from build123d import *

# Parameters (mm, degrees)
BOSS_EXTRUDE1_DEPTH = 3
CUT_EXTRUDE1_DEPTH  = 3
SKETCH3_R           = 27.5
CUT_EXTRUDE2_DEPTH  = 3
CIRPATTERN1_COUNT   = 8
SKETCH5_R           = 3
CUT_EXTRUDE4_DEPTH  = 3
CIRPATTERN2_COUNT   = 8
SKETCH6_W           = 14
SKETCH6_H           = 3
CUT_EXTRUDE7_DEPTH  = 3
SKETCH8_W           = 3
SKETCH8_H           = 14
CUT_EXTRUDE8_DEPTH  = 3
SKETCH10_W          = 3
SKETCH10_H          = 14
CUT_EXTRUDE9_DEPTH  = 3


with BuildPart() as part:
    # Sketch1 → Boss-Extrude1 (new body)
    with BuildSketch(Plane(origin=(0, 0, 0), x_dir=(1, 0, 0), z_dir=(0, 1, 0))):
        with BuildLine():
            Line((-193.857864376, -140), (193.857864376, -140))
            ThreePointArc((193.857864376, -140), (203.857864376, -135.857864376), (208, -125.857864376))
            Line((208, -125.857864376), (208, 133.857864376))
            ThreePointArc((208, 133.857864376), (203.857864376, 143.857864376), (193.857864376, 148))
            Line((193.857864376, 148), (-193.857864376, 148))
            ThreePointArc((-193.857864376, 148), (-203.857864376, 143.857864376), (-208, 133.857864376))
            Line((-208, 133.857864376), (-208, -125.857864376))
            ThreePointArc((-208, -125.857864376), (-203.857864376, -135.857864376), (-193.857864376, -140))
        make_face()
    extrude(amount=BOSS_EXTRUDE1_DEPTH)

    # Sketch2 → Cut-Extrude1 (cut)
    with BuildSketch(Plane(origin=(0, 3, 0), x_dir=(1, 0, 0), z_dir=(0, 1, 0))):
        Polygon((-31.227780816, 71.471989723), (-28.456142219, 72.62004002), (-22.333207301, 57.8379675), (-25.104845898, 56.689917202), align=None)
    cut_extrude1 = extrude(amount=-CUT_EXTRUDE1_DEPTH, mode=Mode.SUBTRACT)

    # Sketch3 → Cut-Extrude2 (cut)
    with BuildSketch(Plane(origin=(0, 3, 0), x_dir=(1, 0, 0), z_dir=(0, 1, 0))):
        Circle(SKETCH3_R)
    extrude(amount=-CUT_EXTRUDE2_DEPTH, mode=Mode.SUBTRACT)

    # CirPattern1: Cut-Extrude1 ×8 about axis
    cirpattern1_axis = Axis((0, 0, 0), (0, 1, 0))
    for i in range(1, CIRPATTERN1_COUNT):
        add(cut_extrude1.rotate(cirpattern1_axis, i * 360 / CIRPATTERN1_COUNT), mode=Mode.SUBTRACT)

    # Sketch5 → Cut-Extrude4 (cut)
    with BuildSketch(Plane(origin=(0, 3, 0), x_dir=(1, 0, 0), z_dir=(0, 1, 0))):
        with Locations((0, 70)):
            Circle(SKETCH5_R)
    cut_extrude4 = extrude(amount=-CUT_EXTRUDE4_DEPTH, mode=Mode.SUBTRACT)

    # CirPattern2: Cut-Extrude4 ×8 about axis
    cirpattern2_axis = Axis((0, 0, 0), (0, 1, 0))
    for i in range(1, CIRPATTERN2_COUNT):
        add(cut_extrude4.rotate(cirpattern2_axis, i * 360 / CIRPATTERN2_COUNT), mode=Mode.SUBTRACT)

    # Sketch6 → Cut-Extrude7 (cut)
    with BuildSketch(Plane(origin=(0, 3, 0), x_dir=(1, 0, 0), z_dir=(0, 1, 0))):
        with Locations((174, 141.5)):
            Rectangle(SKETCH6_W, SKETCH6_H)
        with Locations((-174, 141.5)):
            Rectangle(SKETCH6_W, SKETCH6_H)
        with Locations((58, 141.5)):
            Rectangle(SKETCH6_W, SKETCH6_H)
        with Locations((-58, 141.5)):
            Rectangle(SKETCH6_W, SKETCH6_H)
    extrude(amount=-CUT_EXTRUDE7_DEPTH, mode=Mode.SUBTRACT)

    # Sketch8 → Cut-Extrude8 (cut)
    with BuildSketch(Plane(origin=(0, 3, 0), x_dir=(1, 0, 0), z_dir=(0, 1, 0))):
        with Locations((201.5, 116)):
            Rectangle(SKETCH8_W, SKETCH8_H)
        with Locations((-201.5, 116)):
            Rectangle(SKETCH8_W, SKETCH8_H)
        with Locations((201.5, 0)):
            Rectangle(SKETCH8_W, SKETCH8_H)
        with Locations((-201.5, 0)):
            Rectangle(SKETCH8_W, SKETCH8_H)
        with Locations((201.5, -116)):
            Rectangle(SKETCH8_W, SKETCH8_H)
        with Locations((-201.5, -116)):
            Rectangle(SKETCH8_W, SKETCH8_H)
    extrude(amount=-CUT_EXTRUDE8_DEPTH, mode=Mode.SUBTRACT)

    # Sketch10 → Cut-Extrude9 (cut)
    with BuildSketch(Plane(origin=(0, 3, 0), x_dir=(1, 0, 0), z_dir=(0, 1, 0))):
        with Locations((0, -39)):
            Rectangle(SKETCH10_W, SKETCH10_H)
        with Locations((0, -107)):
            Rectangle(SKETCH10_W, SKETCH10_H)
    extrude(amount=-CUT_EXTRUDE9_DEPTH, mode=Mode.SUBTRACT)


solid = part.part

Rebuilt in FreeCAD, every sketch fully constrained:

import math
import FreeCAD as App
import Part
import Sketcher

V = App.Vector
Q = App.Units.Quantity

doc = App.newDocument("Part")
body = doc.addObject("PartDesign::Body", "Body")

# Sketch on XZ plane
sketch1 = body.newObject("Sketcher::SketchObject", "Sketch")
sketch1.AttachmentSupport = (doc.getObject("XZ_Plane"), [""])
sketch1.MapMode = "FlatFace"
sketch1.addGeometry([
    Part.LineSegment(V(-194, 140, 0), V(194, 140, 0)),  # 0
    Part.ArcOfCircle(Part.Circle(V(194, 126, 0), V(0, 0, 1), 14), math.radians(0), math.radians(90)),  # 1
    Part.LineSegment(V(208, 126, 0), V(208, -134, 0)),  # 2
    Part.ArcOfCircle(Part.Circle(V(194, -134, 0), V(0, 0, 1), 14), math.radians(-90), math.radians(0)),  # 3
    Part.LineSegment(V(194, -148, 0), V(-194, -148, 0)),  # 4
    Part.ArcOfCircle(Part.Circle(V(-194, -134, 0), V(0, 0, 1), 14), math.radians(-180), math.radians(-90)),  # 5
    Part.LineSegment(V(-208, -134, 0), V(-208, 126, 0)),  # 6
    Part.ArcOfCircle(Part.Circle(V(-194, 126, 0), V(0, 0, 1), 14), math.radians(90), math.radians(180)),  # 7
], False)
sketch1.addConstraint([
    Sketcher.Constraint("Tangent", 0, 2, 1, 2),
    Sketcher.Constraint("Tangent", 1, 1, 2, 1),
    Sketcher.Constraint("Tangent", 2, 2, 3, 2),
    Sketcher.Constraint("Tangent", 3, 1, 4, 1),
    Sketcher.Constraint("Tangent", 4, 2, 5, 2),
    Sketcher.Constraint("Tangent", 5, 1, 6, 1),
    Sketcher.Constraint("Tangent", 6, 2, 7, 2),
    Sketcher.Constraint("Tangent", 7, 1, 0, 1),
    Sketcher.Constraint("Horizontal", 0),
    Sketcher.Constraint("Vertical", 2),
    Sketcher.Constraint("Horizontal", 4),
    Sketcher.Constraint("Vertical", 6),
    Sketcher.Constraint("Equal", 1, 3),
    Sketcher.Constraint("Equal", 3, 5),
    Sketcher.Constraint("Equal", 5, 7),
    Sketcher.Constraint("DistanceY", -1, 1, 0, 2, 140.0),
    Sketcher.Constraint("DistanceX", -1, 1, 1, 1, 208.0),
    Sketcher.Constraint("DistanceY", 3, 1, -1, 1, 148.0),
    Sketcher.Constraint("DistanceX", 5, 1, -1, 1, 208.0),
    Sketcher.Constraint("Radius", 1, 14.142136),
])
pad1 = body.newObject("PartDesign::Pad", "Pad")
pad1.Profile = sketch1
pad1.Length = 3
pad1.Reversed = True

# Sketch on XZ plane
sketch2 = body.newObject("Sketcher::SketchObject", "Sketch001")
sketch2.AttachmentSupport = (doc.getObject("XZ_Plane"), [""])
sketch2.MapMode = "FlatFace"
sketch2.AttachmentOffset = App.Placement(V(0, 0, -3), App.Rotation())
sketch2.addGeometry([
    Part.LineSegment(V(-28.5, -72.6, 0), V(-31.2, -71.5, 0)),
    Part.LineSegment(V(-31.2, -71.5, 0), V(-25.1, -56.7, 0)),
    Part.LineSegment(V(-25.1, -56.7, 0), V(-22.3, -57.8, 0)),
    Part.LineSegment(V(-22.3, -57.8, 0), V(-28.5, -72.6, 0)),
], False)
sketch2.addConstraint([
    Sketcher.Constraint("Coincident", 0, 2, 1, 1),
    Sketcher.Constraint("Coincident", 1, 2, 2, 1),
    Sketcher.Constraint("Coincident", 2, 2, 3, 1),
    Sketcher.Constraint("Coincident", 3, 2, 0, 1),
    Sketcher.Constraint("Perpendicular", 0, 1),
    Sketcher.Constraint("Perpendicular", 1, 2),
    Sketcher.Constraint("Perpendicular", 2, 3),
    Sketcher.Constraint("Distance", 0, 3.0),
    Sketcher.Constraint("Distance", 1, 16.0),
    Sketcher.Constraint("Angle", 0, Q("157.5 deg")),
    Sketcher.Constraint("DistanceX", 0, 2, -1, 1, 31.227781),
    Sketcher.Constraint("DistanceY", 0, 2, -1, 1, 71.47199),
])
pocket1 = body.newObject("PartDesign::Pocket", "Pocket")
pocket1.Profile = sketch2
pocket1.Length = 3
pocket1.Reversed = True

# Sketch on XZ plane
sketch3 = body.newObject("Sketcher::SketchObject", "Sketch002")
sketch3.AttachmentSupport = (doc.getObject("XZ_Plane"), [""])
sketch3.MapMode = "FlatFace"
sketch3.AttachmentOffset = App.Placement(V(0, 0, -3), App.Rotation())
sketch3.addGeometry(Part.Circle(V(0, 0, 0), V(0, 0, 1), 28), False)
sketch3.addConstraint([
    Sketcher.Constraint("Coincident", 0, 3, -1, 1),
    Sketcher.Constraint("Diameter", 0, 55.0),
])
pocket2 = body.newObject("PartDesign::Pocket", "Pocket001")
pocket2.Profile = sketch3
pocket2.Length = 3
pocket2.Reversed = True
doc.recompute()

polarpattern = body.newObject("PartDesign::PolarPattern", "PolarPattern")
polarpattern.Originals = [pocket1]
polarpattern.Axis = (doc.getObject("Y_Axis"), [""])
polarpattern.Angle = 360
polarpattern.Occurrences = 8
body.Tip = polarpattern

# Sketch on XZ plane
sketch4 = body.newObject("Sketcher::SketchObject", "Sketch003")
sketch4.AttachmentSupport = (doc.getObject("XZ_Plane"), [""])
sketch4.MapMode = "FlatFace"
sketch4.AttachmentOffset = App.Placement(V(0, 0, -3), App.Rotation())
sketch4.addGeometry(Part.Circle(V(0, -70, 0), V(0, 0, 1), 3), False)
sketch4.addConstraint([
    Sketcher.Constraint("PointOnObject", 0, 3, -2),
    Sketcher.Constraint("Diameter", 0, 6.0),
    Sketcher.Constraint("DistanceY", 0, 3, -1, 1, 70.0),
])
pocket3 = body.newObject("PartDesign::Pocket", "Pocket002")
pocket3.Profile = sketch4
pocket3.Length = 3
pocket3.Reversed = True
doc.recompute()

polarpattern2 = body.newObject("PartDesign::PolarPattern", "PolarPattern001")
polarpattern2.Originals = [pocket3]
polarpattern2.Axis = (doc.getObject("Y_Axis"), [""])
polarpattern2.Angle = 360
polarpattern2.Occurrences = 8
body.Tip = polarpattern2

# Sketch on XZ plane
sketch5 = body.newObject("Sketcher::SketchObject", "Sketch004")
sketch5.AttachmentSupport = (doc.getObject("XZ_Plane"), [""])
sketch5.MapMode = "FlatFace"
sketch5.AttachmentOffset = App.Placement(V(0, 0, -3), App.Rotation())
sketch5.addGeometry([
    Part.LineSegment(V(167, -143, 0), V(167, -140, 0)),  # 0
    Part.LineSegment(V(167, -140, 0), V(181, -140, 0)),  # 1
    Part.LineSegment(V(181, -140, 0), V(181, -143, 0)),  # 2
    Part.LineSegment(V(181, -143, 0), V(167, -143, 0)),  # 3
    Part.LineSegment(V(-181, -143, 0), V(-181, -140, 0)),  # 4
    Part.LineSegment(V(-181, -140, 0), V(-167, -140, 0)),  # 5
    Part.LineSegment(V(-167, -140, 0), V(-167, -143, 0)),  # 6
    Part.LineSegment(V(-167, -143, 0), V(-181, -143, 0)),  # 7
    Part.LineSegment(V(51, -143, 0), V(51, -140, 0)),  # 8
    Part.LineSegment(V(51, -140, 0), V(65, -140, 0)),  # 9
    Part.LineSegment(V(65, -140, 0), V(65, -143, 0)),  # 10
    Part.LineSegment(V(65, -143, 0), V(51, -143, 0)),  # 11
    Part.LineSegment(V(-65, -143, 0), V(-65, -140, 0)),  # 12
    Part.LineSegment(V(-65, -140, 0), V(-51, -140, 0)),  # 13
    Part.LineSegment(V(-51, -140, 0), V(-51, -143, 0)),  # 14
    Part.LineSegment(V(-51, -143, 0), V(-65, -143, 0)),  # 15
], False)
sketch5.addConstraint([
    Sketcher.Constraint("Coincident", 0, 2, 1, 1),
    Sketcher.Constraint("Coincident", 1, 2, 2, 1),
    Sketcher.Constraint("Coincident", 2, 2, 3, 1),
    Sketcher.Constraint("Coincident", 3, 2, 0, 1),
    Sketcher.Constraint("Coincident", 4, 2, 5, 1),
    Sketcher.Constraint("Coincident", 5, 2, 6, 1),
    Sketcher.Constraint("Coincident", 6, 2, 7, 1),
    Sketcher.Constraint("Coincident", 7, 2, 4, 1),
    Sketcher.Constraint("Coincident", 8, 2, 9, 1),
    Sketcher.Constraint("Coincident", 9, 2, 10, 1),
    Sketcher.Constraint("Coincident", 10, 2, 11, 1),
    Sketcher.Constraint("Coincident", 11, 2, 8, 1),
    Sketcher.Constraint("Coincident", 12, 2, 13, 1),
    Sketcher.Constraint("Coincident", 13, 2, 14, 1),
    Sketcher.Constraint("Coincident", 14, 2, 15, 1),
    Sketcher.Constraint("Coincident", 15, 2, 12, 1),
    Sketcher.Constraint("Vertical", 0),
    Sketcher.Constraint("Horizontal", 1),
    Sketcher.Constraint("Vertical", 2),
    Sketcher.Constraint("Horizontal", 3),
    Sketcher.Constraint("Vertical", 4),
    Sketcher.Constraint("Horizontal", 5),
    Sketcher.Constraint("Vertical", 6),
    Sketcher.Constraint("Horizontal", 7),
    Sketcher.Constraint("Vertical", 8),
    Sketcher.Constraint("Horizontal", 9),
    Sketcher.Constraint("Vertical", 10),
    Sketcher.Constraint("Horizontal", 11),
    Sketcher.Constraint("Vertical", 12),
    Sketcher.Constraint("Horizontal", 13),
    Sketcher.Constraint("Vertical", 14),
    Sketcher.Constraint("Horizontal", 15),
    Sketcher.Constraint("Symmetric", 1, 2, 4, 2, -2),
    Sketcher.Constraint("Symmetric", 3, 2, 6, 2, -2),
    Sketcher.Constraint("Symmetric", 9, 2, 12, 2, -2),
    Sketcher.Constraint("Symmetric", 11, 2, 14, 2, -2),
    Sketcher.Constraint("Horizontal", 5, 2, 8, 2),
    Sketcher.Constraint("Horizontal", 7, 2, 10, 2),
    Sketcher.Constraint("Equal", 7, 9),
    Sketcher.Constraint("DistanceX", 1, 1, 1, 2, 14.0),
    Sketcher.Constraint("DistanceY", 0, 1, 0, 2, 3.0),
    Sketcher.Constraint("DistanceX", -1, 1, 0, 2, 167.0),
    Sketcher.Constraint("DistanceY", 0, 2, -1, 1, 140.0),
    Sketcher.Constraint("DistanceX", -1, 1, 8, 2, 51.0),
])
pocket4 = body.newObject("PartDesign::Pocket", "Pocket003")
pocket4.Profile = sketch5
pocket4.Length = 3
pocket4.Reversed = True

# Sketch on XZ plane
sketch6 = body.newObject("Sketcher::SketchObject", "Sketch005")
sketch6.AttachmentSupport = (doc.getObject("XZ_Plane"), [""])
sketch6.MapMode = "FlatFace"
sketch6.AttachmentOffset = App.Placement(V(0, 0, -3), App.Rotation())
sketch6.addGeometry([
    Part.LineSegment(V(200, -123, 0), V(200, -109, 0)),  # 0
    Part.LineSegment(V(200, -109, 0), V(203, -109, 0)),  # 1
    Part.LineSegment(V(203, -109, 0), V(203, -123, 0)),  # 2
    Part.LineSegment(V(203, -123, 0), V(200, -123, 0)),  # 3
    Part.LineSegment(V(-203, -123, 0), V(-203, -109, 0)),  # 4
    Part.LineSegment(V(-203, -109, 0), V(-200, -109, 0)),  # 5
    Part.LineSegment(V(-200, -109, 0), V(-200, -123, 0)),  # 6
    Part.LineSegment(V(-200, -123, 0), V(-203, -123, 0)),  # 7
    Part.LineSegment(V(200, -7, 0), V(200, 7, 0)),  # 8
    Part.LineSegment(V(200, 7, 0), V(203, 7, 0)),  # 9
    Part.LineSegment(V(203, 7, 0), V(203, -7, 0)),  # 10
    Part.LineSegment(V(203, -7, 0), V(200, -7, 0)),  # 11
    Part.LineSegment(V(-203, -7, 0), V(-203, 7, 0)),  # 12
    Part.LineSegment(V(-203, 7, 0), V(-200, 7, 0)),  # 13
    Part.LineSegment(V(-200, 7, 0), V(-200, -7, 0)),  # 14
    Part.LineSegment(V(-200, -7, 0), V(-203, -7, 0)),  # 15
    Part.LineSegment(V(200, 109, 0), V(200, 123, 0)),  # 16
    Part.LineSegment(V(200, 123, 0), V(203, 123, 0)),  # 17
    Part.LineSegment(V(203, 123, 0), V(203, 109, 0)),  # 18
    Part.LineSegment(V(203, 109, 0), V(200, 109, 0)),  # 19
    Part.LineSegment(V(-203, 109, 0), V(-203, 123, 0)),  # 20
    Part.LineSegment(V(-203, 123, 0), V(-200, 123, 0)),  # 21
    Part.LineSegment(V(-200, 123, 0), V(-200, 109, 0)),  # 22
    Part.LineSegment(V(-200, 109, 0), V(-203, 109, 0)),  # 23
], False)
sketch6.addConstraint([
    Sketcher.Constraint("Coincident", 0, 2, 1, 1),
    Sketcher.Constraint("Coincident", 1, 2, 2, 1),
    Sketcher.Constraint("Coincident", 2, 2, 3, 1),
    Sketcher.Constraint("Coincident", 3, 2, 0, 1),
    Sketcher.Constraint("Coincident", 4, 2, 5, 1),
    Sketcher.Constraint("Coincident", 5, 2, 6, 1),
    Sketcher.Constraint("Coincident", 6, 2, 7, 1),
    Sketcher.Constraint("Coincident", 7, 2, 4, 1),
    Sketcher.Constraint("Coincident", 8, 2, 9, 1),
    Sketcher.Constraint("Coincident", 9, 2, 10, 1),
    Sketcher.Constraint("Coincident", 10, 2, 11, 1),
    Sketcher.Constraint("Coincident", 11, 2, 8, 1),
    Sketcher.Constraint("Coincident", 12, 2, 13, 1),
    Sketcher.Constraint("Coincident", 13, 2, 14, 1),
    Sketcher.Constraint("Coincident", 14, 2, 15, 1),
    Sketcher.Constraint("Coincident", 15, 2, 12, 1),
    Sketcher.Constraint("Coincident", 16, 2, 17, 1),
    Sketcher.Constraint("Coincident", 17, 2, 18, 1),
    Sketcher.Constraint("Coincident", 18, 2, 19, 1),
    Sketcher.Constraint("Coincident", 19, 2, 16, 1),
    Sketcher.Constraint("Coincident", 20, 2, 21, 1),
    Sketcher.Constraint("Coincident", 21, 2, 22, 1),
    Sketcher.Constraint("Coincident", 22, 2, 23, 1),
    Sketcher.Constraint("Coincident", 23, 2, 20, 1),
    Sketcher.Constraint("Vertical", 0),
    Sketcher.Constraint("Horizontal", 1),
    Sketcher.Constraint("Vertical", 2),
    Sketcher.Constraint("Horizontal", 3),
    Sketcher.Constraint("Vertical", 4),
    Sketcher.Constraint("Horizontal", 5),
    Sketcher.Constraint("Vertical", 6),
    Sketcher.Constraint("Horizontal", 7),
    Sketcher.Constraint("Vertical", 8),
    Sketcher.Constraint("Horizontal", 9),
    Sketcher.Constraint("Vertical", 10),
    Sketcher.Constraint("Horizontal", 11),
    Sketcher.Constraint("Vertical", 12),
    Sketcher.Constraint("Horizontal", 13),
    Sketcher.Constraint("Vertical", 14),
    Sketcher.Constraint("Horizontal", 15),
    Sketcher.Constraint("Vertical", 16),
    Sketcher.Constraint("Horizontal", 17),
    Sketcher.Constraint("Vertical", 18),
    Sketcher.Constraint("Horizontal", 19),
    Sketcher.Constraint("Vertical", 20),
    Sketcher.Constraint("Horizontal", 21),
    Sketcher.Constraint("Vertical", 22),
    Sketcher.Constraint("Horizontal", 23),
    Sketcher.Constraint("Symmetric", 10, 2, 12, 2, -1, 1),
    Sketcher.Constraint("Symmetric", 8, 2, 14, 2, -1, 1),
    Sketcher.Constraint("Symmetric", 6, 2, 16, 2, -1, 1),
    Sketcher.Constraint("Symmetric", 4, 2, 18, 2, -1, 1),
    Sketcher.Constraint("Symmetric", 2, 2, 20, 2, -1, 1),
    Sketcher.Constraint("Symmetric", 0, 2, 22, 2, -1, 1),
    Sketcher.Constraint("Symmetric", 1, 2, 4, 2, -2),
    Sketcher.Constraint("Symmetric", 3, 2, 6, 2, -2),
    Sketcher.Constraint("Horizontal", 9, 2, 12, 2),
    Sketcher.Constraint("Vertical", 3, 2, 8, 2),
    Sketcher.Constraint("Vertical", 2, 2, 9, 2),
    Sketcher.Constraint("Equal", 6, 8),
    Sketcher.Constraint("DistanceX", 1, 1, 1, 2, 3.0),
    Sketcher.Constraint("DistanceY", 0, 1, 0, 2, 14.0),
    Sketcher.Constraint("DistanceX", -1, 1, 0, 2, 200.0),
    Sketcher.Constraint("DistanceY", 0, 2, -1, 1, 109.0),
])
pocket5 = body.newObject("PartDesign::Pocket", "Pocket004")
pocket5.Profile = sketch6
pocket5.Length = 3
pocket5.Reversed = True

# Sketch on XZ plane
sketch7 = body.newObject("Sketcher::SketchObject", "Sketch006")
sketch7.AttachmentSupport = (doc.getObject("XZ_Plane"), [""])
sketch7.MapMode = "FlatFace"
sketch7.AttachmentOffset = App.Placement(V(0, 0, -3), App.Rotation())
sketch7.addGeometry([
    Part.LineSegment(V(-1.5, 32, 0), V(-1.5, 46, 0)),  # 0
    Part.LineSegment(V(-1.5, 46, 0), V(1.5, 46, 0)),  # 1
    Part.LineSegment(V(1.5, 46, 0), V(1.5, 32, 0)),  # 2
    Part.LineSegment(V(1.5, 32, 0), V(-1.5, 32, 0)),  # 3
    Part.LineSegment(V(-1.5, 100, 0), V(-1.5, 114, 0)),  # 4
    Part.LineSegment(V(-1.5, 114, 0), V(1.5, 114, 0)),  # 5
    Part.LineSegment(V(1.5, 114, 0), V(1.5, 100, 0)),  # 6
    Part.LineSegment(V(1.5, 100, 0), V(-1.5, 100, 0)),  # 7
], False)
sketch7.addConstraint([
    Sketcher.Constraint("Coincident", 0, 2, 1, 1),
    Sketcher.Constraint("Coincident", 1, 2, 2, 1),
    Sketcher.Constraint("Coincident", 2, 2, 3, 1),
    Sketcher.Constraint("Coincident", 3, 2, 0, 1),
    Sketcher.Constraint("Coincident", 4, 2, 5, 1),
    Sketcher.Constraint("Coincident", 5, 2, 6, 1),
    Sketcher.Constraint("Coincident", 6, 2, 7, 1),
    Sketcher.Constraint("Coincident", 7, 2, 4, 1),
    Sketcher.Constraint("Vertical", 0),
    Sketcher.Constraint("Horizontal", 1),
    Sketcher.Constraint("Vertical", 2),
    Sketcher.Constraint("Horizontal", 3),
    Sketcher.Constraint("Vertical", 4),
    Sketcher.Constraint("Horizontal", 5),
    Sketcher.Constraint("Vertical", 6),
    Sketcher.Constraint("Horizontal", 7),
    Sketcher.Constraint("Vertical", 3, 2, 4, 2),
    Sketcher.Constraint("Vertical", 2, 2, 5, 2),
    Sketcher.Constraint("Equal", 2, 4),
    Sketcher.Constraint("DistanceX", 1, 1, 1, 2, 3.0),
    Sketcher.Constraint("DistanceY", 0, 1, 0, 2, 14.0),
    Sketcher.Constraint("DistanceY", -1, 1, 0, 2, 46.0),
    Sketcher.Constraint("DistanceY", -1, 1, 4, 2, 114.0),
    Sketcher.Constraint("DistanceX", 0, 2, -1, 1, 1.5),
])
pocket6 = body.newObject("PartDesign::Pocket", "Pocket005")
pocket6.Profile = sketch7
pocket6.Length = 3
pocket6.Reversed = True

doc.recompute()
